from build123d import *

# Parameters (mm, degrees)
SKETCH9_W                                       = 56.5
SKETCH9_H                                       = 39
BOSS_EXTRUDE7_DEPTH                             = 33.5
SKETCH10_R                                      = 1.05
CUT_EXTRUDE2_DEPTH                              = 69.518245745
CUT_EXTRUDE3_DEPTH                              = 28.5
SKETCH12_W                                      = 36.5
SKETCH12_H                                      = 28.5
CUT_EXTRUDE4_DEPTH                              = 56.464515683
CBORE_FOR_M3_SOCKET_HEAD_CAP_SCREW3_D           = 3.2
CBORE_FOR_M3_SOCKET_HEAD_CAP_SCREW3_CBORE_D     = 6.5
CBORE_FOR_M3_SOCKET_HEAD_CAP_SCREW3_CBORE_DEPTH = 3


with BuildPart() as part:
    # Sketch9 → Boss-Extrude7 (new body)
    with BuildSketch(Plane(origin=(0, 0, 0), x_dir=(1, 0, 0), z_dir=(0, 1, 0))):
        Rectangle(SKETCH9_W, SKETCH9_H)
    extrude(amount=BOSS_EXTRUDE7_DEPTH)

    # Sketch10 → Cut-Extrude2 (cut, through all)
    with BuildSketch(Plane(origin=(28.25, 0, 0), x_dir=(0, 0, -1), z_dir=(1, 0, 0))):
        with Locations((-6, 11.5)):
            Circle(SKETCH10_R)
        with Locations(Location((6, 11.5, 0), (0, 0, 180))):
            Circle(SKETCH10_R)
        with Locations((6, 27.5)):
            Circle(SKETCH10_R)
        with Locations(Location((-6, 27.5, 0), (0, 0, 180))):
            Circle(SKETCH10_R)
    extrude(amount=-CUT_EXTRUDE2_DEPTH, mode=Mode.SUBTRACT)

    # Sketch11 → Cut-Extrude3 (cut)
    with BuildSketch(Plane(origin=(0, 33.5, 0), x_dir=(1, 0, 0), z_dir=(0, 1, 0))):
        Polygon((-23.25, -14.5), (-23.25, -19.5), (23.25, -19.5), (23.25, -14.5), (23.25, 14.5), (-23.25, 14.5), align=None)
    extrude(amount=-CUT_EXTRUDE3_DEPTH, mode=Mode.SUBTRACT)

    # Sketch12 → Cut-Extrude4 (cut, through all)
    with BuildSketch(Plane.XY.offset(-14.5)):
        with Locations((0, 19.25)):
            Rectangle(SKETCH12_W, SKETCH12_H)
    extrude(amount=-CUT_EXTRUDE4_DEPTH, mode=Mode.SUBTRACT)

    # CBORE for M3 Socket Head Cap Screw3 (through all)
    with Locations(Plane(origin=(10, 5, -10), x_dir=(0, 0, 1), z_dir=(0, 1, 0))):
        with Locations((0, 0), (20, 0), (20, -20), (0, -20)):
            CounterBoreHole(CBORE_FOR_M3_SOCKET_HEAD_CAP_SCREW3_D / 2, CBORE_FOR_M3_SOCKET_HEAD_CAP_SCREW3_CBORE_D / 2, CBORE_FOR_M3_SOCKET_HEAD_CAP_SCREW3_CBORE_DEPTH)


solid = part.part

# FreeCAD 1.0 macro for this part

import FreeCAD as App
import Part
import Sketcher
from FreeCAD import Vector
Q = App.Units.Quantity

doc = App.newDocument("Part")
body = doc.addObject("PartDesign::Body", "Body")

sketch1 = body.newObject("Sketcher::SketchObject", "Sketch")
sketch1.AttachmentSupport = (doc.getObject("XZ_Plane"), [""])
sketch1.MapMode = "FlatFace"
sketch1.addGeometry(Part.LineSegment(Vector(-28, -20, 0), Vector(-28, 20, 0)), False)
sketch1.addGeometry(Part.LineSegment(Vector(-28, 20, 0), Vector(28, 20, 0)), False)
sketch1.addGeometry(Part.LineSegment(Vector(28, 20, 0), Vector(28, -20, 0)), False)
sketch1.addGeometry(Part.LineSegment(Vector(28, -20, 0), Vector(-28, -20, 0)), False)
sketch1.addConstraint(Sketcher.Constraint("Coincident", 0, 2, 1, 1))
sketch1.addConstraint(Sketcher.Constraint("Coincident", 1, 2, 2, 1))
sketch1.addConstraint(Sketcher.Constraint("Coincident", 2, 2, 3, 1))
sketch1.addConstraint(Sketcher.Constraint("Coincident", 3, 2, 0, 1))
sketch1.addConstraint(Sketcher.Constraint("Vertical", 0))
sketch1.addConstraint(Sketcher.Constraint("Horizontal", 1))
sketch1.addConstraint(Sketcher.Constraint("Vertical", 2))
sketch1.addConstraint(Sketcher.Constraint("Horizontal", 3))
sketch1.addConstraint(Sketcher.Constraint("Symmetric", 0, 2, 2, 2, -1, 1))
sketch1.addConstraint(Sketcher.Constraint("DistanceY", 0, 1, 0, 2, Q("39 mm")))
sketch1.addConstraint(Sketcher.Constraint("DistanceX", 1, 1, 1, 2, Q("56.5 mm")))
pad1 = body.newObject("PartDesign::Pad", "Pad")
pad1.Profile = sketch1
pad1.Length = 33.5
pad1.Reversed = True

sketch2 = body.newObject("Sketcher::SketchObject", "Sketch001")
sketch2.AttachmentSupport = (doc.getObject("YZ_Plane"), [""])
sketch2.MapMode = "FlatFace"
sketch2.AttachmentOffset = App.Placement(Vector(0, 0, 28.25), App.Rotation())
sketch2.addGeometry(Part.Circle(Vector(11.5, 6, 0), Vector(0, 0, 1), 1.1), False)
sketch2.addGeometry(Part.Circle(Vector(11.5, -6, 0), Vector(0, 0, 1), 1.1), False)
sketch2.addGeometry(Part.Circle(Vector(27.5, -6, 0), Vector(0, 0, 1), 1.1), False)
sketch2.addGeometry(Part.Circle(Vector(27.5, 6, 0), Vector(0, 0, 1), 1.1), False)
sketch2.addConstraint(Sketcher.Constraint("Equal", 0, 1))
sketch2.addConstraint(Sketcher.Constraint("Equal", 1, 2))
sketch2.addConstraint(Sketcher.Constraint("Equal", 2, 3))
sketch2.addConstraint(Sketcher.Constraint("Symmetric", 0, 3, 1, 3, -1))
sketch2.addConstraint(Sketcher.Constraint("Symmetric", 2, 3, 3, 3, -1))
sketch2.addConstraint(Sketcher.Constraint("Horizontal", 1, 3, 2, 3))
sketch2.addConstraint(Sketcher.Constraint("Diameter", 0, Q("2.1 mm")))
sketch2.addConstraint(Sketcher.Constraint("DistanceY", -1, 1, 0, 3, Q("6 mm")))
sketch2.addConstraint(Sketcher.Constraint("DistanceX", 1, 3, 2, 3, Q("16 mm")))
sketch2.addConstraint(Sketcher.Constraint("DistanceX", -1, 1, 0, 3, Q("11.5 mm")))
pocket1 = body.newObject("PartDesign::Pocket", "Pocket")
pocket1.Profile = sketch2
pocket1.Type = "ThroughAll"

sketch3 = body.newObject("Sketcher::SketchObject", "Sketch002")
sketch3.AttachmentSupport = (doc.getObject("XZ_Plane"), [""])
sketch3.MapMode = "FlatFace"
sketch3.AttachmentOffset = App.Placement(Vector(0, 0, -33.5), App.Rotation())
sketch3.addGeometry(Part.LineSegment(Vector(-23, 20, 0), Vector(23, 20, 0)), False)
sketch3.addGeometry(Part.LineSegment(Vector(23, 20, 0), Vector(23, -14, 0)), False)
sketch3.addGeometry(Part.LineSegment(Vector(23, -14, 0), Vector(-23, -14, 0)), False)
sketch3.addGeometry(Part.LineSegment(Vector(-23, -14, 0), Vector(-23, 20, 0)), False)
sketch3.addConstraint(Sketcher.Constraint("Coincident", 0, 2, 1, 1))
sketch3.addConstraint(Sketcher.Constraint("Coincident", 1, 2, 2, 1))
sketch3.addConstraint(Sketcher.Constraint("Coincident", 2, 2, 3, 1))
sketch3.addConstraint(Sketcher.Constraint("Coincident", 3, 2, 0, 1))
sketch3.addConstraint(Sketcher.Constraint("Horizontal", 0))
sketch3.addConstraint(Sketcher.Constraint("Vertical", 1))
sketch3.addConstraint(Sketcher.Constraint("Horizontal", 2))
sketch3.addConstraint(Sketcher.Constraint("Vertical", 3))
sketch3.addConstraint(Sketcher.Constraint("DistanceY", 1, 2, 1, 1, Q("34 mm")))
sketch3.addConstraint(Sketcher.Constraint("DistanceX", 0, 1, 0, 2, Q("46.5 mm")))
sketch3.addConstraint(Sketcher.Constraint("DistanceY", -1, 1, 0, 2, Q("19.5 mm")))
sketch3.addConstraint(Sketcher.Constraint("DistanceX", -1, 1, 0, 2, Q("23.25 mm")))
pocket2 = body.newObject("PartDesign::Pocket", "Pocket001")
pocket2.Profile = sketch3
pocket2.Length = 28.5
pocket2.Reversed = True

sketch4 = body.newObject("Sketcher::SketchObject", "Sketch003")
sketch4.AttachmentSupport = (doc.getObject("XY_Plane"), [""])
sketch4.MapMode = "FlatFace"
sketch4.AttachmentOffset = App.Placement(Vector(0, 0, -14.5), App.Rotation())
sketch4.addGeometry(Part.LineSegment(Vector(-18, 34, 0), Vector(-18, 5, 0)), False)
sketch4.addGeometry(Part.LineSegment(Vector(-18, 5, 0), Vector(18, 5, 0)), False)
sketch4.addGeometry(Part.LineSegment(Vector(18, 5, 0), Vector(18, 34, 0)), False)
sketch4.addGeometry(Part.LineSegment(Vector(18, 34, 0), Vector(-18, 34, 0)), False)
sketch4.addConstraint(Sketcher.Constraint("Coincident", 0, 2, 1, 1))
sketch4.addConstraint(Sketcher.Constraint("Coincident", 1, 2, 2, 1))
sketch4.addConstraint(Sketcher.Constraint("Coincident", 2, 2, 3, 1))
sketch4.addConstraint(Sketcher.Constraint("Coincident", 3, 2, 0, 1))
sketch4.addConstraint(Sketcher.Constraint("Vertical", 0))
sketch4.addConstraint(Sketcher.Constraint("Horizontal", 1))
sketch4.addConstraint(Sketcher.Constraint("Vertical", 2))
sketch4.addConstraint(Sketcher.Constraint("Horizontal", 3))
sketch4.addConstraint(Sketcher.Constraint("DistanceX", 1, 1, 1, 2, Q("36.5 mm")))
sketch4.addConstraint(Sketcher.Constraint("DistanceY", 0, 2, 0, 1, Q("28.5 mm")))
sketch4.addConstraint(Sketcher.Constraint("DistanceY", -1, 1, 0, 2, Q("5 mm")))
sketch4.addConstraint(Sketcher.Constraint("DistanceX", 0, 2, -1, 1, Q("18.25 mm")))
pocket3 = body.newObject("PartDesign::Pocket", "Pocket002")
pocket3.Profile = sketch4
pocket3.Type = "ThroughAll"

sketch5 = body.newObject("Sketcher::SketchObject", "Sketch004")
sketch5.AttachmentSupport = (doc.getObject("XZ_Plane"), [""])
sketch5.MapMode = "FlatFace"
sketch5.AttachmentOffset = App.Placement(Vector(0, 0, -5), App.Rotation())
sketch5.addGeometry(Part.Circle(Vector(10, -10, 0), Vector(0, 0, 1), 1.6), False)
sketch5.addGeometry(Part.Circle(Vector(10, 10, 0), Vector(0, 0, 1), 1.6), False)
sketch5.addGeometry(Part.Circle(Vector(-10, 10, 0), Vector(0, 0, 1), 1.6), False)
sketch5.addGeometry(Part.Circle(Vector(-10, -10, 0), Vector(0, 0, 1), 1.6), False)
sketch5.addConstraint(Sketcher.Constraint("Equal", 0, 1))
sketch5.addConstraint(Sketcher.Constraint("Equal", 1, 2))
sketch5.addConstraint(Sketcher.Constraint("Equal", 2, 3))
sketch5.addConstraint(Sketcher.Constraint("Symmetric", 0, 3, 2, 3, -1, 1))
sketch5.addConstraint(Sketcher.Constraint("Symmetric", 1, 3, 3, 3, -1, 1))
sketch5.addConstraint(Sketcher.Constraint("Symmetric", 1, 3, 2, 3, -2))
sketch5.addConstraint(Sketcher.Constraint("Diameter", 0, Q("3.2 mm")))
sketch5.addConstraint(Sketcher.Constraint("DistanceX", -1, 1, 0, 3, Q("10 mm")))
sketch5.addConstraint(Sketcher.Constraint("DistanceY", 0, 3, -1, 1, Q("10 mm")))
doc.recompute()
hole = body.newObject("PartDesign::Hole", "Hole")
hole.Profile = sketch5
hole.ThreadType = "None"
hole.Diameter = 3.2
hole.DepthType = "ThroughAll"
hole.HoleCutType = "Counterbore"
hole.HoleCutDiameter = 6.5
hole.HoleCutDepth = 3
hole.Reversed = True

doc.recompute()
